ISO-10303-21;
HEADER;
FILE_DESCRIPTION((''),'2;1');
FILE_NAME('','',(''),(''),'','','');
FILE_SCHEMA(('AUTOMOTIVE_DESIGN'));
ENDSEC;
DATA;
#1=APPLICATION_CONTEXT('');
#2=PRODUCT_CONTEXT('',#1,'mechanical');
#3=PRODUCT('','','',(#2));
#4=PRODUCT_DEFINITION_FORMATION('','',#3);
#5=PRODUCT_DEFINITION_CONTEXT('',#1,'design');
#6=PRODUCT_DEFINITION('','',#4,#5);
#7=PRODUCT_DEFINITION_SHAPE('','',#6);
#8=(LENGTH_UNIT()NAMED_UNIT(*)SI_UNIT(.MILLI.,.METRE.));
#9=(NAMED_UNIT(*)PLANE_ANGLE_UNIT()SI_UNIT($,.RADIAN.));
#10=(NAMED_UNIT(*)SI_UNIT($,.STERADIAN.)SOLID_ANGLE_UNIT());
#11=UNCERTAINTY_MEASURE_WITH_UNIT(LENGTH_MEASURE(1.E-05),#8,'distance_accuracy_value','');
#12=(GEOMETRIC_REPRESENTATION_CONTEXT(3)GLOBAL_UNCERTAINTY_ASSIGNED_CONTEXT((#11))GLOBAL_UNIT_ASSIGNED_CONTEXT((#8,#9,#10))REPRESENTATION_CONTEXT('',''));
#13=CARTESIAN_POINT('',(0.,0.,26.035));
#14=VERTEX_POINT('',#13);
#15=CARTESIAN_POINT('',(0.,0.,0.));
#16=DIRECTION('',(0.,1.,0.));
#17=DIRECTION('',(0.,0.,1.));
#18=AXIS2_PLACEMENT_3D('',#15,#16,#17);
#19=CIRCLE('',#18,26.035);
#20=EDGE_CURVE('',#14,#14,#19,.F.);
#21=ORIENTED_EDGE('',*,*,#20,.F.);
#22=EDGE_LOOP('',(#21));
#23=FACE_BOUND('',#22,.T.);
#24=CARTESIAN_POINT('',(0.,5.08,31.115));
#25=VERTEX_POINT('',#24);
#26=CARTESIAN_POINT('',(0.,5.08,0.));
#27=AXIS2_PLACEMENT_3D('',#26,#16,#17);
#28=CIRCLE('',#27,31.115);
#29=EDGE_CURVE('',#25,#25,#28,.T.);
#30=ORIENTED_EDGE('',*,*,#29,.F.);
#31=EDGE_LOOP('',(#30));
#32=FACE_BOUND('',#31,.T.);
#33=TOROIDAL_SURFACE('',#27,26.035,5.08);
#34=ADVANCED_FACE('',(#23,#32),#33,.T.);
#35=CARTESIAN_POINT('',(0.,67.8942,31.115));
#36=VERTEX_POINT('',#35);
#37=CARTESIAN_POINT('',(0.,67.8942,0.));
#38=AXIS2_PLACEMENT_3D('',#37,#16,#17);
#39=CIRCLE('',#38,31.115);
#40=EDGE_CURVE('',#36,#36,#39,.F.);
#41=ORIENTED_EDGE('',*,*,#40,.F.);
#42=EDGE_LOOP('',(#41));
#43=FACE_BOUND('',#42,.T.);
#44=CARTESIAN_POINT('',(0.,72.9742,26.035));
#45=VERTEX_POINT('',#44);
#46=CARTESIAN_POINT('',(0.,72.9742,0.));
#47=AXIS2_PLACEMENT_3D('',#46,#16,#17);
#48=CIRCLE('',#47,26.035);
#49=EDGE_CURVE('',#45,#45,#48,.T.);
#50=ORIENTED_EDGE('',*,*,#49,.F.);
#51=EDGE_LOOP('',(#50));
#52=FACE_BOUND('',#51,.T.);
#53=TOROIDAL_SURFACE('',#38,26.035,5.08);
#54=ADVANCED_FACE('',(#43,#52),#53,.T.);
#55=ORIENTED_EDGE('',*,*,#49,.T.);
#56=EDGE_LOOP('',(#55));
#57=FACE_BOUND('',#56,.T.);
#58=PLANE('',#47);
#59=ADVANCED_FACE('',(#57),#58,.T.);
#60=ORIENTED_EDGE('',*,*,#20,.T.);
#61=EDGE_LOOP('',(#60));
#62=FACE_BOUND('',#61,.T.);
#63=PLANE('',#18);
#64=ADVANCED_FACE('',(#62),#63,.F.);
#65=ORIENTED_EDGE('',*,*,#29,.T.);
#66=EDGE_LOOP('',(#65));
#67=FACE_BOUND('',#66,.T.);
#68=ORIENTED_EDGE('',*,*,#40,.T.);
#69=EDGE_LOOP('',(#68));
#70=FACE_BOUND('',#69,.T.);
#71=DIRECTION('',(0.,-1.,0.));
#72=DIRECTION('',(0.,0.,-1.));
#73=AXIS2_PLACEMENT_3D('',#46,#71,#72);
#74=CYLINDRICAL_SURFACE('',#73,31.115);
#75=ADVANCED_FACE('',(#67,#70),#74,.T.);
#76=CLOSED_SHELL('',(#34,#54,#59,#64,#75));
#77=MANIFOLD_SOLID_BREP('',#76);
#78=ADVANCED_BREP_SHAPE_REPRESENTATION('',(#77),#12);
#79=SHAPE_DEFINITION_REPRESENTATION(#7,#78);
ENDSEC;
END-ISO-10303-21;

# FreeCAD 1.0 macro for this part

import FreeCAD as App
import Part
import Sketcher
Q = App.Units.Quantity


def edges_at(feature, points):
    """Names of the edges that pass closest to the given points."""
    edges = feature.Shape.Edges
    near = lambda p: min(range(len(edges)), key=lambda i: edges[i].distToShape(Part.Vertex(*p))[0])
    return sorted({f"Edge{near(p) + 1}" for p in points})

doc = App.newDocument("Part")
body = doc.addObject("PartDesign::Body", "Body")

# Sketch on XZ plane
sketch1 = body.newObject("Sketcher::SketchObject", "Sketch")
sketch1.AttachmentSupport = (doc.getObject("XZ_Plane"), [""])
sketch1.MapMode = "FlatFace"
sketch1.addGeometry(Part.Circle(App.Vector(0, 0, 0), App.Vector(0, 0, 1), 31), False)
sketch1.addConstraint(Sketcher.Constraint("Coincident", 0, 3, -1, 1))
sketch1.addConstraint(Sketcher.Constraint("Diameter", 0, Q("2.45 in")))
pad1 = body.newObject("PartDesign::Pad", "Pad")
pad1.Profile = sketch1
pad1.Length = Q("2.873 in")
pad1.Reversed = True
doc.recompute()

fillet = body.newObject("PartDesign::Fillet", "Fillet")
fillet.Base = (pad1, edges_at(pad1, [(-31.115, 0, 0), (-31.115, 72.974, 0)]))
fillet.Radius = Q("0.2 in")

doc.recompute()
